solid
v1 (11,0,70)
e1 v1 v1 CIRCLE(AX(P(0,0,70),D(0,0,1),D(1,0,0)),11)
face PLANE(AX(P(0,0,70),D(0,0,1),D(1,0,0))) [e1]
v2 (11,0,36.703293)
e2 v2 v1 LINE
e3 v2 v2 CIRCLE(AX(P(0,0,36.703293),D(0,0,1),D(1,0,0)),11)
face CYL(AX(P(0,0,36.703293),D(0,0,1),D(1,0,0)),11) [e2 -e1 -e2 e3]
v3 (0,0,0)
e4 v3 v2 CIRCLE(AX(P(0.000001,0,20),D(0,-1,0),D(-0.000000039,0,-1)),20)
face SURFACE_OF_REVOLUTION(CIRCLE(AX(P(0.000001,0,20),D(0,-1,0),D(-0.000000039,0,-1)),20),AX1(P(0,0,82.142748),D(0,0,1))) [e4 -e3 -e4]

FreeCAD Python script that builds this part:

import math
import FreeCAD as App
import Part
import Sketcher

V = App.Vector

doc = App.newDocument("Part")
body = doc.addObject("PartDesign::Body", "Body")

# Sketch on XZ plane
sketch1 = body.newObject("Sketcher::SketchObject", "Sketch")
sketch1.AttachmentSupport = (doc.getObject("XZ_Plane"), [""])
sketch1.MapMode = "FlatFace"
sketch1.addGeometry(Part.LineSegment(V(0, 70, 0), V(0, 0, 0)), False)
sketch1.addGeometry(Part.ArcOfCircle(Part.Circle(V(0.000001, 20, 0), V(0, 0, 1), 20), math.radians(-90.000002), math.radians(56.632989)), False)
sketch1.addGeometry(Part.LineSegment(V(11, 36.703293, 0), V(11, 70, 0)), False)
sketch1.addGeometry(Part.LineSegment(V(11, 70, 0), V(0, 70, 0)), False)
sketch1.addConstraint(Sketcher.Constraint("Coincident", 0, 2, 1, 1))
sketch1.addConstraint(Sketcher.Constraint("Coincident", 1, 2, 2, 1))
sketch1.addConstraint(Sketcher.Constraint("Coincident", 2, 2, 3, 1))
sketch1.addConstraint(Sketcher.Constraint("Coincident", 3, 2, 0, 1))
sketch1.addConstraint(Sketcher.Constraint("Vertical", 0))
sketch1.addConstraint(Sketcher.Constraint("Vertical", 2))
sketch1.addConstraint(Sketcher.Constraint("Horizontal", 3))
sketch1.addConstraint(Sketcher.Constraint("Coincident", 0, 2, -1, 1))
sketch1.addConstraint(Sketcher.Constraint("PointOnObject", 1, 3, -2))
sketch1.addConstraint(Sketcher.Constraint("Radius", 1, 20.0))
sketch1.addConstraint(Sketcher.Constraint("DistanceX", 3, 2, 3, 1, 11.0))
sketch1.addConstraint(Sketcher.Constraint("DistanceY", 0, 2, 0, 1, 70.0))
revolution = body.newObject("PartDesign::Revolution", "Revolution")
revolution.Profile = sketch1
revolution.ReferenceAxis = (sketch1, ["V_Axis"])
revolution.Angle = 360

doc.recompute()
